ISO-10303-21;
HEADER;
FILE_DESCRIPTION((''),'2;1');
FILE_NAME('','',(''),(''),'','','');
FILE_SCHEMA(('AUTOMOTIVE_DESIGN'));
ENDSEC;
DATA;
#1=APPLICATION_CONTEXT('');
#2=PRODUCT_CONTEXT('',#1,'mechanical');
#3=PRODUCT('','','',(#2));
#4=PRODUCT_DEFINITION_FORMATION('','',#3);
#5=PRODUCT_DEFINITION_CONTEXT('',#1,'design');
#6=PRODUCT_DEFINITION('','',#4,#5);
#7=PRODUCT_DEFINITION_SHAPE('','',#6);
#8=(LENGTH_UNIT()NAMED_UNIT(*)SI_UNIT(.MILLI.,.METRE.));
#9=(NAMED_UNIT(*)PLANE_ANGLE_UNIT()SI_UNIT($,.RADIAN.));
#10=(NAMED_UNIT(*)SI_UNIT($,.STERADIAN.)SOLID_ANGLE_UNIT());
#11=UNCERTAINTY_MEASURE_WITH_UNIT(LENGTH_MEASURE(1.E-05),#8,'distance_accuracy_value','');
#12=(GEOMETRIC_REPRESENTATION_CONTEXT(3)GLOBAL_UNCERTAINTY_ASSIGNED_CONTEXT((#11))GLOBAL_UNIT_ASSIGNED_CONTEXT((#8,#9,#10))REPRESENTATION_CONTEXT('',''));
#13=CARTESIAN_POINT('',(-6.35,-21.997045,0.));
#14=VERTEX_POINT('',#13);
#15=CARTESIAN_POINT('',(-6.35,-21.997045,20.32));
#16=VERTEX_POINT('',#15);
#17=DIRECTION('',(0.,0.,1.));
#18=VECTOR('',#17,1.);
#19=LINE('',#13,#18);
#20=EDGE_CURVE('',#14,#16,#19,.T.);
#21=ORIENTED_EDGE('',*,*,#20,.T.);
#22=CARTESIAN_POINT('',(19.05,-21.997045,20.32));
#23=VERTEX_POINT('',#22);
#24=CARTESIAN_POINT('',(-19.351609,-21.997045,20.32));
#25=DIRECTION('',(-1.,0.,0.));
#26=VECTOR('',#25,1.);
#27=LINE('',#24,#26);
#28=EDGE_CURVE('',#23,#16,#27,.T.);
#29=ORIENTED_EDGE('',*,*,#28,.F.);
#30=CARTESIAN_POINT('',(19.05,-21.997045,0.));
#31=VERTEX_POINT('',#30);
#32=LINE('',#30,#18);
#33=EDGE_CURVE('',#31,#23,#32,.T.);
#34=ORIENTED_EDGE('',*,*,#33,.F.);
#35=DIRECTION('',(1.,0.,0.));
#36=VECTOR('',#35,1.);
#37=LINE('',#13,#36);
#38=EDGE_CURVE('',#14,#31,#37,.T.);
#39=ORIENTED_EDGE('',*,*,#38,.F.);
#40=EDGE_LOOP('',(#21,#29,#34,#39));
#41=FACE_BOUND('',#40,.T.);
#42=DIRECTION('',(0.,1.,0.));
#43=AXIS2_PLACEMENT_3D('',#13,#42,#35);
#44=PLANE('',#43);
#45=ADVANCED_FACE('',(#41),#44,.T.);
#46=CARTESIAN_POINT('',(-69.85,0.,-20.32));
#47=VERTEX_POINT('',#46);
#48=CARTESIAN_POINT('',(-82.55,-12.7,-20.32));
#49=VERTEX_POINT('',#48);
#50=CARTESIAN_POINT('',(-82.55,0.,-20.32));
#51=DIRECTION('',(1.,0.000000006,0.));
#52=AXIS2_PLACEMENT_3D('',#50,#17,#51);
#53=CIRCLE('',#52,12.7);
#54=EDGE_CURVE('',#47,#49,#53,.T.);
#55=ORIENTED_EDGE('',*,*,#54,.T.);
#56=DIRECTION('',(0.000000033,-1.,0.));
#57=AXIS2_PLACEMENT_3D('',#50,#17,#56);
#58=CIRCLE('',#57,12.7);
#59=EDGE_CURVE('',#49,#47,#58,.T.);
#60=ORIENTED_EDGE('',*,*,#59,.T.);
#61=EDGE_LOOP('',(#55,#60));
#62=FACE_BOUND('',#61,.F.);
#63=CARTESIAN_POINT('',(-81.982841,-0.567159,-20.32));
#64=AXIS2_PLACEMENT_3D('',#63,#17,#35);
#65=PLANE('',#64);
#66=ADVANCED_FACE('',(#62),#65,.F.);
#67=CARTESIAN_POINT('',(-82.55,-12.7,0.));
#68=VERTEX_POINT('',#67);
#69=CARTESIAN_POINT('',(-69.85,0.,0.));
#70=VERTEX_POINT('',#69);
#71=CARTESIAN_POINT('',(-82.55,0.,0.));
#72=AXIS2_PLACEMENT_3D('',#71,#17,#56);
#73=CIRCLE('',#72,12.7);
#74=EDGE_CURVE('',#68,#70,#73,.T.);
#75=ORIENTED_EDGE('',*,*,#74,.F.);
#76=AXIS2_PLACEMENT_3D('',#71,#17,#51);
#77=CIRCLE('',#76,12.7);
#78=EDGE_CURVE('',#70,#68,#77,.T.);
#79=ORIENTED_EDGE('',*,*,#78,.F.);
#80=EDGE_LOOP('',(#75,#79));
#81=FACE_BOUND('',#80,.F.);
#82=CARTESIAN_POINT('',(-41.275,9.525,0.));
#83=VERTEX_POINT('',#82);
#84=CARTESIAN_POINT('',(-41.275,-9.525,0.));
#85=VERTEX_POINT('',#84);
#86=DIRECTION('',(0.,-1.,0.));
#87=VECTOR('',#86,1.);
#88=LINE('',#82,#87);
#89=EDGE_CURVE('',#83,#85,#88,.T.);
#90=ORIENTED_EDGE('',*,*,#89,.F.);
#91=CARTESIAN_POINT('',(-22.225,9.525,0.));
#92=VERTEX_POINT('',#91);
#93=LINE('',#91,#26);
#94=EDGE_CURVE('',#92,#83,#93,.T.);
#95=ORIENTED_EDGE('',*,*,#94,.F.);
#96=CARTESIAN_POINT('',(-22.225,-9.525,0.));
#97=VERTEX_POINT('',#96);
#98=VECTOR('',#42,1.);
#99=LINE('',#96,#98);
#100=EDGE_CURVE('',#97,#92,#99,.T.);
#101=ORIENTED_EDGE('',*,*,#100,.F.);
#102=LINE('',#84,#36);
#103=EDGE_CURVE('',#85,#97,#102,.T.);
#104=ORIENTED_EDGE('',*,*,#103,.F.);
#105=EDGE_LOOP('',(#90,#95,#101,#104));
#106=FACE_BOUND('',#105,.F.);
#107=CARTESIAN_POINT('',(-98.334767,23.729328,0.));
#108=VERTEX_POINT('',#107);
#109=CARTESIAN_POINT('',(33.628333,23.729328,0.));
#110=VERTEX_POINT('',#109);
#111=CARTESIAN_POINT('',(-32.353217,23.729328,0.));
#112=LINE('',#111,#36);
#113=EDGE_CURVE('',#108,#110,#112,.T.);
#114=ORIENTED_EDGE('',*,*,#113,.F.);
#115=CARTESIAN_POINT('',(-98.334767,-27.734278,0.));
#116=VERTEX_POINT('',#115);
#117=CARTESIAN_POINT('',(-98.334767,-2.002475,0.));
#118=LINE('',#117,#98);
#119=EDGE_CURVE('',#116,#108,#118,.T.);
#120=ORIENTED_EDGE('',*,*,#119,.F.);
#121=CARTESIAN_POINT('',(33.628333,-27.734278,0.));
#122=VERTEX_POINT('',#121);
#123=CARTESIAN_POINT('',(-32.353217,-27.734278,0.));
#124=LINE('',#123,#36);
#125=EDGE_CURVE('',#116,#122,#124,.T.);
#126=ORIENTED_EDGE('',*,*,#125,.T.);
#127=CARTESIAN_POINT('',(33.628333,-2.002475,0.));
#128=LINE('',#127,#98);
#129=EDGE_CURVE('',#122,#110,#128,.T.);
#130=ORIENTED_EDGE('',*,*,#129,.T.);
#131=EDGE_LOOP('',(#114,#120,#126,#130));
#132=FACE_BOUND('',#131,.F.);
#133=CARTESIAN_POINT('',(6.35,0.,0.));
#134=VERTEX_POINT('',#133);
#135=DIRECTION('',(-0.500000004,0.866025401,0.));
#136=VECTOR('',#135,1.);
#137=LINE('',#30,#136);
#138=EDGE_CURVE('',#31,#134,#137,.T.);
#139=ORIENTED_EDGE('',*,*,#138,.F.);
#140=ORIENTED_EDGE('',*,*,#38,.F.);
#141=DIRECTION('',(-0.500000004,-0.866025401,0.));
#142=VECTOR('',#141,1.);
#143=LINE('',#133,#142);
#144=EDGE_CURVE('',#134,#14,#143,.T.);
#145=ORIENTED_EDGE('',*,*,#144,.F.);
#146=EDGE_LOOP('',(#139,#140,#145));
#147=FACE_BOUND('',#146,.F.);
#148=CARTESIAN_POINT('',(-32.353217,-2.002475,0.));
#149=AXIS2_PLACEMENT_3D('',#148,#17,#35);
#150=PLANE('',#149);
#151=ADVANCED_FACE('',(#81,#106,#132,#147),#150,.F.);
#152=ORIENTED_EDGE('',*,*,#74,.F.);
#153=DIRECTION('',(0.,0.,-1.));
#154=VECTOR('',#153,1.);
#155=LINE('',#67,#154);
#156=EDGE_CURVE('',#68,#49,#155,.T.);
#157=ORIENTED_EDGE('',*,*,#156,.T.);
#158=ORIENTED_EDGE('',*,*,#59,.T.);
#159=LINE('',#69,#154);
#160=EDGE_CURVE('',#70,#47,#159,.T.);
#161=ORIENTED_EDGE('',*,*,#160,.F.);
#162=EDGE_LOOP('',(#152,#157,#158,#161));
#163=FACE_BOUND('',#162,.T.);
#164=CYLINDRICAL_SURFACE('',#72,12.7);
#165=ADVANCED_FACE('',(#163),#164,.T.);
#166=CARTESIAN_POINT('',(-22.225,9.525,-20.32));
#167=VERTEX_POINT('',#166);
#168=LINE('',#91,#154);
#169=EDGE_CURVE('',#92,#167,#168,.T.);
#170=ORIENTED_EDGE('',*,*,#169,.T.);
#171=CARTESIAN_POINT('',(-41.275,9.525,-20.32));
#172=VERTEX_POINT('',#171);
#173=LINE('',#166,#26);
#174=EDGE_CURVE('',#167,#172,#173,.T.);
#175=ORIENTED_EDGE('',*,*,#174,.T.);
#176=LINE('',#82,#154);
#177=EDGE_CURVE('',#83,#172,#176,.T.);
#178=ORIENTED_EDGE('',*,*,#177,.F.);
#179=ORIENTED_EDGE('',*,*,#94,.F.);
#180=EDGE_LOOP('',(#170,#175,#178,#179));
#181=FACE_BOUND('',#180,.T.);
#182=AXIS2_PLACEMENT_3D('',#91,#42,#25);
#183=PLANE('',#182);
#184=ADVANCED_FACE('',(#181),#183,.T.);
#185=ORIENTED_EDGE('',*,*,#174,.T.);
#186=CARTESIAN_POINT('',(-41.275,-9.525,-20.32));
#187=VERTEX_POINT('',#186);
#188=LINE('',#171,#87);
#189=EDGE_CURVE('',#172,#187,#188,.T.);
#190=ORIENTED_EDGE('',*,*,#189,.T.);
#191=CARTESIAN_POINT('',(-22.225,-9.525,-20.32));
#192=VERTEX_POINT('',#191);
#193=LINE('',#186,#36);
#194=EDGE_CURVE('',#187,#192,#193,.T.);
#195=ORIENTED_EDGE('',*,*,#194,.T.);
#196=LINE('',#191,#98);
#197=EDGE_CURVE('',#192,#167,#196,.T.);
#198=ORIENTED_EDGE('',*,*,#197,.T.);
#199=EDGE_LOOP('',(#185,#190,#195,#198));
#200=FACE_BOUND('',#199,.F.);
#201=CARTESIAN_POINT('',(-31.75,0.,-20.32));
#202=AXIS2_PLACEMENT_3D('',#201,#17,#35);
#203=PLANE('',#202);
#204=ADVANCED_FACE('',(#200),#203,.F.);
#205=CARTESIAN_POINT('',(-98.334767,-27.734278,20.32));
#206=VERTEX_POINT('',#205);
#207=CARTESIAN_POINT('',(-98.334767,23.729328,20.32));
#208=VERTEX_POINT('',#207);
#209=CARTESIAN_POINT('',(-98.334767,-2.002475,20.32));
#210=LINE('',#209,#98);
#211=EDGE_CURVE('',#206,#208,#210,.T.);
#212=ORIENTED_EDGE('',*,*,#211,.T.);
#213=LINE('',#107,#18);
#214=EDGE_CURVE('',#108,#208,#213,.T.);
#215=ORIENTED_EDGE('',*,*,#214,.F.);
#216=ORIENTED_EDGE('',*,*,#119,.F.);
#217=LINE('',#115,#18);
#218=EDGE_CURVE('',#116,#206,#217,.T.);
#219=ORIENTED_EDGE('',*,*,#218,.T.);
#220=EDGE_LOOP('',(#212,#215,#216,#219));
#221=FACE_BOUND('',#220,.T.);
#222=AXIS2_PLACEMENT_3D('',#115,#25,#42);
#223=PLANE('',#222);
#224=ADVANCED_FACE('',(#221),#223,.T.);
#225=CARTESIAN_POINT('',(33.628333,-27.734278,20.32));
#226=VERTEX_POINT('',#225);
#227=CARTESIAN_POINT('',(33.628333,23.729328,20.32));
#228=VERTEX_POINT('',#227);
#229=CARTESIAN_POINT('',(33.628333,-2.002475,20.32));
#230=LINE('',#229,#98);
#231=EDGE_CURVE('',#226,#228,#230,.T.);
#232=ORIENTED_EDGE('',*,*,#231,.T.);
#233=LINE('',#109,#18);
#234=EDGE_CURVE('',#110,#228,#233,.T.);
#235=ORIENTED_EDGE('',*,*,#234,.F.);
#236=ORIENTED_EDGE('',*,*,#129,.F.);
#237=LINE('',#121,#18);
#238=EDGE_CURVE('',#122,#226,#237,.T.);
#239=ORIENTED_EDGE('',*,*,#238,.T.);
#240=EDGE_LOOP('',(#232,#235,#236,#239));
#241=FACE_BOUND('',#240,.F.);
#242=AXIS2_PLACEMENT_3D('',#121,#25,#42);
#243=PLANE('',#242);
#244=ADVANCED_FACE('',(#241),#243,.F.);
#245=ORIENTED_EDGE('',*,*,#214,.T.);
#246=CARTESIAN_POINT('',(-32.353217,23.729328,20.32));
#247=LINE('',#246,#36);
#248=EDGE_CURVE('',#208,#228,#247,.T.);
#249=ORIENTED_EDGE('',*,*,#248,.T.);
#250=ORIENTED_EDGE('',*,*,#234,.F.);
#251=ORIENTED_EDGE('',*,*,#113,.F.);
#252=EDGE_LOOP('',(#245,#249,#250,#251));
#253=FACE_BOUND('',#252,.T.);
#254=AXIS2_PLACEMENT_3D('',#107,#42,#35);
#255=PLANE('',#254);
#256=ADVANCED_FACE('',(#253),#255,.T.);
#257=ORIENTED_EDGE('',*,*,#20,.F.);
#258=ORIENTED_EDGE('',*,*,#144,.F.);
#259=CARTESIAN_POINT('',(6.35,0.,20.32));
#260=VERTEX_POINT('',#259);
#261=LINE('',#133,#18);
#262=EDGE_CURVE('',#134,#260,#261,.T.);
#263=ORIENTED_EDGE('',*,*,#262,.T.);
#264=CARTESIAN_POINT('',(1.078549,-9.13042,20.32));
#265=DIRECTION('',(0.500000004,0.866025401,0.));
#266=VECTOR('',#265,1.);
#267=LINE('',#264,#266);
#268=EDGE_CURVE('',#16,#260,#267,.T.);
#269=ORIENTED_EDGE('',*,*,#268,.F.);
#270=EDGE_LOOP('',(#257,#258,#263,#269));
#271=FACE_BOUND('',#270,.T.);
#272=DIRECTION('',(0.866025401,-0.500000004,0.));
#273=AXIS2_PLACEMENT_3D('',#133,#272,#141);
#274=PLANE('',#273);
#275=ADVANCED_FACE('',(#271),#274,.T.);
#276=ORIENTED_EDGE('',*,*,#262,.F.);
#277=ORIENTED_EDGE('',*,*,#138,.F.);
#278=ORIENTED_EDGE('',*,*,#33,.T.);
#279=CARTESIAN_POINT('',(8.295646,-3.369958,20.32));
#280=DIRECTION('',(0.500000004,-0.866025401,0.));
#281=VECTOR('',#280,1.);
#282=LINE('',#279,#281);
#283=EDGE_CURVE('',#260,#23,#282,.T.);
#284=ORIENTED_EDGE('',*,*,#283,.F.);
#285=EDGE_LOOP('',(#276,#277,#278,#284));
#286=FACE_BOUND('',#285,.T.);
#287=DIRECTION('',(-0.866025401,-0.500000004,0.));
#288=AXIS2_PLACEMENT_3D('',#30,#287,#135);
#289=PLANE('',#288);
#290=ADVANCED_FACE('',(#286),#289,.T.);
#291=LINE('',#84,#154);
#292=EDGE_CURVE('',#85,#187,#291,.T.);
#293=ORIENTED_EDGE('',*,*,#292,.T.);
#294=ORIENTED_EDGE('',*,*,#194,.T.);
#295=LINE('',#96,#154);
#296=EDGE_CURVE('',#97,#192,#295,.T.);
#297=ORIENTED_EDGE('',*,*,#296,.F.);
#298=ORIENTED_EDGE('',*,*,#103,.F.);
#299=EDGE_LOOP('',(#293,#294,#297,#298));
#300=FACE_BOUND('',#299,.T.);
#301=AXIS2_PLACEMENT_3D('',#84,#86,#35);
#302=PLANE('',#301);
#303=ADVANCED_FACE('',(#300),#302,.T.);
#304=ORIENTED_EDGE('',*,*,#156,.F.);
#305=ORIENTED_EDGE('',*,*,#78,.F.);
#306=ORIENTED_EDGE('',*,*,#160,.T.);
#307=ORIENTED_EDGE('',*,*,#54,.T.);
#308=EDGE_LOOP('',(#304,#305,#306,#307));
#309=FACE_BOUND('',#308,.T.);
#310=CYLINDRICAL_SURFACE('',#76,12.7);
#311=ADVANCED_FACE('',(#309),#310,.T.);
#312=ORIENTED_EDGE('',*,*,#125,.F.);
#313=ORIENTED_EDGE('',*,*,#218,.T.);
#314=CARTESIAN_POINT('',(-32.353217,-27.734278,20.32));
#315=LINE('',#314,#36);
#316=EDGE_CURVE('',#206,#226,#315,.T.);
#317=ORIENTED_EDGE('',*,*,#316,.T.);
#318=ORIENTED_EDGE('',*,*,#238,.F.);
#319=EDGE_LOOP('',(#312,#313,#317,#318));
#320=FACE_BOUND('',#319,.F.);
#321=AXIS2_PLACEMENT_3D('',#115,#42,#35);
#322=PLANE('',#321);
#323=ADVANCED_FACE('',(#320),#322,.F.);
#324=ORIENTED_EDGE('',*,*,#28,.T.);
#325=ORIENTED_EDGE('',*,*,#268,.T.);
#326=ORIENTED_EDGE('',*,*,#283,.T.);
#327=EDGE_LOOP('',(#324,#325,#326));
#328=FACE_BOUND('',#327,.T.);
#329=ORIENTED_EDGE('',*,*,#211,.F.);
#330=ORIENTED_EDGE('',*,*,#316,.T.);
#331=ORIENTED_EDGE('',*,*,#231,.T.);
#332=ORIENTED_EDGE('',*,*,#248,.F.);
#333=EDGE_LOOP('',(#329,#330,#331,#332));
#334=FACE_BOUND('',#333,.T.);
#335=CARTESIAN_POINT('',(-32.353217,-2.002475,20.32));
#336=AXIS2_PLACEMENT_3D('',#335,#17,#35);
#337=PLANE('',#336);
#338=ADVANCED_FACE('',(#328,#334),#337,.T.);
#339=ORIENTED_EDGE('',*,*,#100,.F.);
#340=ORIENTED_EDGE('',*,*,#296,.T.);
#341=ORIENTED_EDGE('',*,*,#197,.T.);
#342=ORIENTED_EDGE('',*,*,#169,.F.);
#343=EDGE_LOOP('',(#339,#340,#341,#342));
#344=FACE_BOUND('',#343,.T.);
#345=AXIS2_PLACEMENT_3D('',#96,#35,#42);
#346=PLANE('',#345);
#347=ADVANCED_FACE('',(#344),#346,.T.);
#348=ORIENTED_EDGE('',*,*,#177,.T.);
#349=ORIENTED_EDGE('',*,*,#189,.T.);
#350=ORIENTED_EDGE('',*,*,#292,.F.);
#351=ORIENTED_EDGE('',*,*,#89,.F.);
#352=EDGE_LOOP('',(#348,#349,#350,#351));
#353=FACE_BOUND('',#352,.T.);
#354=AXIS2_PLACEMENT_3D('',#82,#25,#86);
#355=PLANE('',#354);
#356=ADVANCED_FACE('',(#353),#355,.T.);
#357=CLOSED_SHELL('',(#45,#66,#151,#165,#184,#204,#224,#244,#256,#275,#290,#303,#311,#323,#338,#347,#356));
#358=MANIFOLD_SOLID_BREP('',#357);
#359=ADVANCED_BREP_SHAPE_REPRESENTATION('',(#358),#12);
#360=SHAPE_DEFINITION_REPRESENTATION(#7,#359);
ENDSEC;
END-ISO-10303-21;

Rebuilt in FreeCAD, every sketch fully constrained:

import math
import FreeCAD as App
import Part
import Sketcher

V = App.Vector
Q = App.Units.Quantity

doc = App.newDocument("Part")
params = doc.addObject("Spreadsheet::Sheet", "Params")
for row, (alias, value) in enumerate([
    ("pad1_length", "0.8 in"),
    ("sketch2_radius", "0.5 in"),
    ("sketch2_width", "0.75 in"),
    ("pad2_length", "0.8 in"),
    ("sketch3_width", "1 in"),
    ("sketch3_length", "1 in"),
    ("pocket1_length", "2.25 in"),
], start=1):
    params.set(f"A{row}", alias)
    params.set(f"B{row}", "=" + value)
    params.setAlias(f"B{row}", alias)

body = doc.addObject("PartDesign::Body", "Body")

sketch1 = doc.addObject("Sketcher::SketchObject", "Sketch")
body.addObject(sketch1)
sketch1.AttachmentSupport = (doc.XY_Plane, [""])
sketch1.MapMode = "FlatFace"
sketch1.addGeometry([
    Part.LineSegment(V(-98.334767, 23.729328, 0), V(-98.334767, -27.734278, 0)),
    Part.LineSegment(V(-98.334767, -27.734278, 0), V(33.628333, -27.734278, 0)),
    Part.LineSegment(V(33.628333, -27.734278, 0), V(33.628333, 23.729328, 0)),
    Part.LineSegment(V(33.628333, 23.729328, 0), V(-98.334767, 23.729328, 0)),
], False)
sketch1.addConstraint([
    Sketcher.Constraint("Coincident", 0, 2, 1, 1),
    Sketcher.Constraint("Coincident", 1, 2, 2, 1),
    Sketcher.Constraint("Coincident", 2, 2, 3, 1),
    Sketcher.Constraint("Coincident", 3, 2, 0, 1),
    Sketcher.Constraint("Vertical", 0),
    Sketcher.Constraint("Horizontal", 1),
    Sketcher.Constraint("Vertical", 2),
    Sketcher.Constraint("Horizontal", 3),
    Sketcher.Constraint("DistanceX", 1, 1, 1, 2, Q("131.9631 mm")),
    Sketcher.Constraint("DistanceY", 0, 2, 0, 1, Q("51.463606 mm")),
    Sketcher.Constraint("DistanceY", 0, 2, -1, 1, Q("27.734278 mm")),
    Sketcher.Constraint("DistanceX", 0, 2, -1, 1, Q("98.334767 mm")),
])
pad1 = doc.addObject("PartDesign::Pad", "Pad")
body.addObject(pad1)
pad1.Profile = sketch1
pad1.setExpression("Length", "Params.pad1_length")

sketch2 = doc.addObject("Sketcher::SketchObject", "Sketch001")
body.addObject(sketch2)
sketch2.AttachmentSupport = (doc.XY_Plane, [""])
sketch2.MapMode = "FlatFace"
sketch2.addGeometry([
    Part.ArcOfCircle(Part.Circle(V(-82.55, 0, 0), V(0, 0, 1), 12.7), math.radians(0), math.radians(270)),
    Part.ArcOfCircle(Part.Circle(V(-82.55, 0, 0), V(0, 0, 1), 12.7), math.radians(-89.999998), math.radians(-0.000002)),
    Part.LineSegment(V(-41.275, -9.525, 0), V(-22.225, -9.525, 0)),
    Part.LineSegment(V(-22.225, -9.525, 0), V(-22.225, 9.525, 0)),
    Part.LineSegment(V(-22.225, 9.525, 0), V(-41.275, 9.525, 0)),
    Part.LineSegment(V(-41.275, 9.525, 0), V(-41.275, -9.525, 0)),
], False)
sketch2.addConstraint([
    Sketcher.Constraint("Tangent", 0, 1, 1, 2),
    Sketcher.Constraint("Coincident", 1, 1, 0, 2),
    Sketcher.Constraint("Coincident", 2, 2, 3, 1),
    Sketcher.Constraint("Coincident", 3, 2, 4, 1),
    Sketcher.Constraint("Coincident", 4, 2, 5, 1),
    Sketcher.Constraint("Coincident", 5, 2, 2, 1),
    Sketcher.Constraint("Horizontal", 2),
    Sketcher.Constraint("Vertical", 3),
    Sketcher.Constraint("Horizontal", 4),
    Sketcher.Constraint("Vertical", 5),
    Sketcher.Constraint("PointOnObject", 0, 3, -1),
    Sketcher.Constraint("PointOnObject", 0, 1, -1),
    Sketcher.Constraint("Vertical", 0, 3, 1, 1),
    Sketcher.Constraint("Equal", 4, 3),
    Sketcher.Constraint("Radius", 0, Q("0.5 in")),
    Sketcher.Constraint("DistanceX", 2, 1, 2, 2, Q("0.75 in")),
    Sketcher.Constraint("DistanceX", 0, 3, -1, 1, Q("3.25 in")),
    Sketcher.Constraint("DistanceX", 2, 2, -1, 1, Q("0.875 in")),
    Sketcher.Constraint("DistanceY", 2, 2, -1, 1, Q("0.375 in")),
])
sketch2.setExpression("Constraints[14]", "Params.sketch2_radius")
sketch2.setExpression("Constraints[15]", "Params.sketch2_width")
pad2 = doc.addObject("PartDesign::Pad", "Pad001")
body.addObject(pad2)
pad2.Profile = sketch2
pad2.setExpression("Length", "Params.pad2_length")
pad2.Reversed = True

sketch3 = doc.addObject("Sketcher::SketchObject", "Sketch002")
body.addObject(sketch3)
sketch3.AttachmentSupport = (doc.XY_Plane, [""])
sketch3.MapMode = "FlatFace"
sketch3.addGeometry([
    Part.LineSegment(V(19.05, -21.997045, 0), V(6.35, 0, 0)),
    Part.LineSegment(V(6.35, 0, 0), V(-6.35, -21.997045, 0)),
    Part.LineSegment(V(-6.35, -21.997045, 0), V(19.05, -21.997045, 0)),
], False)
sketch3.addConstraint([
    Sketcher.Constraint("Coincident", 0, 2, 1, 1),
    Sketcher.Constraint("Coincident", 1, 2, 2, 1),
    Sketcher.Constraint("Coincident", 2, 2, 0, 1),
    Sketcher.Constraint("Horizontal", 2),
    Sketcher.Constraint("PointOnObject", 0, 2, -1),
    Sketcher.Constraint("Equal", 0, 1),
    Sketcher.Constraint("DistanceX", 2, 1, 2, 2, Q("1 in")),
    Sketcher.Constraint("Distance", 0, Q("1 in")),
    Sketcher.Constraint("DistanceX", -1, 1, 0, 2, Q("0.25 in")),
])
sketch3.setExpression("Constraints[6]", "Params.sketch3_width")
sketch3.setExpression("Constraints[7]", "Params.sketch3_length")
pocket1 = doc.addObject("PartDesign::Pocket", "Pocket")
body.addObject(pocket1)
pocket1.Profile = sketch3
pocket1.setExpression("Length", "Params.pocket1_length")
pocket1.Reversed = True

doc.recompute()
